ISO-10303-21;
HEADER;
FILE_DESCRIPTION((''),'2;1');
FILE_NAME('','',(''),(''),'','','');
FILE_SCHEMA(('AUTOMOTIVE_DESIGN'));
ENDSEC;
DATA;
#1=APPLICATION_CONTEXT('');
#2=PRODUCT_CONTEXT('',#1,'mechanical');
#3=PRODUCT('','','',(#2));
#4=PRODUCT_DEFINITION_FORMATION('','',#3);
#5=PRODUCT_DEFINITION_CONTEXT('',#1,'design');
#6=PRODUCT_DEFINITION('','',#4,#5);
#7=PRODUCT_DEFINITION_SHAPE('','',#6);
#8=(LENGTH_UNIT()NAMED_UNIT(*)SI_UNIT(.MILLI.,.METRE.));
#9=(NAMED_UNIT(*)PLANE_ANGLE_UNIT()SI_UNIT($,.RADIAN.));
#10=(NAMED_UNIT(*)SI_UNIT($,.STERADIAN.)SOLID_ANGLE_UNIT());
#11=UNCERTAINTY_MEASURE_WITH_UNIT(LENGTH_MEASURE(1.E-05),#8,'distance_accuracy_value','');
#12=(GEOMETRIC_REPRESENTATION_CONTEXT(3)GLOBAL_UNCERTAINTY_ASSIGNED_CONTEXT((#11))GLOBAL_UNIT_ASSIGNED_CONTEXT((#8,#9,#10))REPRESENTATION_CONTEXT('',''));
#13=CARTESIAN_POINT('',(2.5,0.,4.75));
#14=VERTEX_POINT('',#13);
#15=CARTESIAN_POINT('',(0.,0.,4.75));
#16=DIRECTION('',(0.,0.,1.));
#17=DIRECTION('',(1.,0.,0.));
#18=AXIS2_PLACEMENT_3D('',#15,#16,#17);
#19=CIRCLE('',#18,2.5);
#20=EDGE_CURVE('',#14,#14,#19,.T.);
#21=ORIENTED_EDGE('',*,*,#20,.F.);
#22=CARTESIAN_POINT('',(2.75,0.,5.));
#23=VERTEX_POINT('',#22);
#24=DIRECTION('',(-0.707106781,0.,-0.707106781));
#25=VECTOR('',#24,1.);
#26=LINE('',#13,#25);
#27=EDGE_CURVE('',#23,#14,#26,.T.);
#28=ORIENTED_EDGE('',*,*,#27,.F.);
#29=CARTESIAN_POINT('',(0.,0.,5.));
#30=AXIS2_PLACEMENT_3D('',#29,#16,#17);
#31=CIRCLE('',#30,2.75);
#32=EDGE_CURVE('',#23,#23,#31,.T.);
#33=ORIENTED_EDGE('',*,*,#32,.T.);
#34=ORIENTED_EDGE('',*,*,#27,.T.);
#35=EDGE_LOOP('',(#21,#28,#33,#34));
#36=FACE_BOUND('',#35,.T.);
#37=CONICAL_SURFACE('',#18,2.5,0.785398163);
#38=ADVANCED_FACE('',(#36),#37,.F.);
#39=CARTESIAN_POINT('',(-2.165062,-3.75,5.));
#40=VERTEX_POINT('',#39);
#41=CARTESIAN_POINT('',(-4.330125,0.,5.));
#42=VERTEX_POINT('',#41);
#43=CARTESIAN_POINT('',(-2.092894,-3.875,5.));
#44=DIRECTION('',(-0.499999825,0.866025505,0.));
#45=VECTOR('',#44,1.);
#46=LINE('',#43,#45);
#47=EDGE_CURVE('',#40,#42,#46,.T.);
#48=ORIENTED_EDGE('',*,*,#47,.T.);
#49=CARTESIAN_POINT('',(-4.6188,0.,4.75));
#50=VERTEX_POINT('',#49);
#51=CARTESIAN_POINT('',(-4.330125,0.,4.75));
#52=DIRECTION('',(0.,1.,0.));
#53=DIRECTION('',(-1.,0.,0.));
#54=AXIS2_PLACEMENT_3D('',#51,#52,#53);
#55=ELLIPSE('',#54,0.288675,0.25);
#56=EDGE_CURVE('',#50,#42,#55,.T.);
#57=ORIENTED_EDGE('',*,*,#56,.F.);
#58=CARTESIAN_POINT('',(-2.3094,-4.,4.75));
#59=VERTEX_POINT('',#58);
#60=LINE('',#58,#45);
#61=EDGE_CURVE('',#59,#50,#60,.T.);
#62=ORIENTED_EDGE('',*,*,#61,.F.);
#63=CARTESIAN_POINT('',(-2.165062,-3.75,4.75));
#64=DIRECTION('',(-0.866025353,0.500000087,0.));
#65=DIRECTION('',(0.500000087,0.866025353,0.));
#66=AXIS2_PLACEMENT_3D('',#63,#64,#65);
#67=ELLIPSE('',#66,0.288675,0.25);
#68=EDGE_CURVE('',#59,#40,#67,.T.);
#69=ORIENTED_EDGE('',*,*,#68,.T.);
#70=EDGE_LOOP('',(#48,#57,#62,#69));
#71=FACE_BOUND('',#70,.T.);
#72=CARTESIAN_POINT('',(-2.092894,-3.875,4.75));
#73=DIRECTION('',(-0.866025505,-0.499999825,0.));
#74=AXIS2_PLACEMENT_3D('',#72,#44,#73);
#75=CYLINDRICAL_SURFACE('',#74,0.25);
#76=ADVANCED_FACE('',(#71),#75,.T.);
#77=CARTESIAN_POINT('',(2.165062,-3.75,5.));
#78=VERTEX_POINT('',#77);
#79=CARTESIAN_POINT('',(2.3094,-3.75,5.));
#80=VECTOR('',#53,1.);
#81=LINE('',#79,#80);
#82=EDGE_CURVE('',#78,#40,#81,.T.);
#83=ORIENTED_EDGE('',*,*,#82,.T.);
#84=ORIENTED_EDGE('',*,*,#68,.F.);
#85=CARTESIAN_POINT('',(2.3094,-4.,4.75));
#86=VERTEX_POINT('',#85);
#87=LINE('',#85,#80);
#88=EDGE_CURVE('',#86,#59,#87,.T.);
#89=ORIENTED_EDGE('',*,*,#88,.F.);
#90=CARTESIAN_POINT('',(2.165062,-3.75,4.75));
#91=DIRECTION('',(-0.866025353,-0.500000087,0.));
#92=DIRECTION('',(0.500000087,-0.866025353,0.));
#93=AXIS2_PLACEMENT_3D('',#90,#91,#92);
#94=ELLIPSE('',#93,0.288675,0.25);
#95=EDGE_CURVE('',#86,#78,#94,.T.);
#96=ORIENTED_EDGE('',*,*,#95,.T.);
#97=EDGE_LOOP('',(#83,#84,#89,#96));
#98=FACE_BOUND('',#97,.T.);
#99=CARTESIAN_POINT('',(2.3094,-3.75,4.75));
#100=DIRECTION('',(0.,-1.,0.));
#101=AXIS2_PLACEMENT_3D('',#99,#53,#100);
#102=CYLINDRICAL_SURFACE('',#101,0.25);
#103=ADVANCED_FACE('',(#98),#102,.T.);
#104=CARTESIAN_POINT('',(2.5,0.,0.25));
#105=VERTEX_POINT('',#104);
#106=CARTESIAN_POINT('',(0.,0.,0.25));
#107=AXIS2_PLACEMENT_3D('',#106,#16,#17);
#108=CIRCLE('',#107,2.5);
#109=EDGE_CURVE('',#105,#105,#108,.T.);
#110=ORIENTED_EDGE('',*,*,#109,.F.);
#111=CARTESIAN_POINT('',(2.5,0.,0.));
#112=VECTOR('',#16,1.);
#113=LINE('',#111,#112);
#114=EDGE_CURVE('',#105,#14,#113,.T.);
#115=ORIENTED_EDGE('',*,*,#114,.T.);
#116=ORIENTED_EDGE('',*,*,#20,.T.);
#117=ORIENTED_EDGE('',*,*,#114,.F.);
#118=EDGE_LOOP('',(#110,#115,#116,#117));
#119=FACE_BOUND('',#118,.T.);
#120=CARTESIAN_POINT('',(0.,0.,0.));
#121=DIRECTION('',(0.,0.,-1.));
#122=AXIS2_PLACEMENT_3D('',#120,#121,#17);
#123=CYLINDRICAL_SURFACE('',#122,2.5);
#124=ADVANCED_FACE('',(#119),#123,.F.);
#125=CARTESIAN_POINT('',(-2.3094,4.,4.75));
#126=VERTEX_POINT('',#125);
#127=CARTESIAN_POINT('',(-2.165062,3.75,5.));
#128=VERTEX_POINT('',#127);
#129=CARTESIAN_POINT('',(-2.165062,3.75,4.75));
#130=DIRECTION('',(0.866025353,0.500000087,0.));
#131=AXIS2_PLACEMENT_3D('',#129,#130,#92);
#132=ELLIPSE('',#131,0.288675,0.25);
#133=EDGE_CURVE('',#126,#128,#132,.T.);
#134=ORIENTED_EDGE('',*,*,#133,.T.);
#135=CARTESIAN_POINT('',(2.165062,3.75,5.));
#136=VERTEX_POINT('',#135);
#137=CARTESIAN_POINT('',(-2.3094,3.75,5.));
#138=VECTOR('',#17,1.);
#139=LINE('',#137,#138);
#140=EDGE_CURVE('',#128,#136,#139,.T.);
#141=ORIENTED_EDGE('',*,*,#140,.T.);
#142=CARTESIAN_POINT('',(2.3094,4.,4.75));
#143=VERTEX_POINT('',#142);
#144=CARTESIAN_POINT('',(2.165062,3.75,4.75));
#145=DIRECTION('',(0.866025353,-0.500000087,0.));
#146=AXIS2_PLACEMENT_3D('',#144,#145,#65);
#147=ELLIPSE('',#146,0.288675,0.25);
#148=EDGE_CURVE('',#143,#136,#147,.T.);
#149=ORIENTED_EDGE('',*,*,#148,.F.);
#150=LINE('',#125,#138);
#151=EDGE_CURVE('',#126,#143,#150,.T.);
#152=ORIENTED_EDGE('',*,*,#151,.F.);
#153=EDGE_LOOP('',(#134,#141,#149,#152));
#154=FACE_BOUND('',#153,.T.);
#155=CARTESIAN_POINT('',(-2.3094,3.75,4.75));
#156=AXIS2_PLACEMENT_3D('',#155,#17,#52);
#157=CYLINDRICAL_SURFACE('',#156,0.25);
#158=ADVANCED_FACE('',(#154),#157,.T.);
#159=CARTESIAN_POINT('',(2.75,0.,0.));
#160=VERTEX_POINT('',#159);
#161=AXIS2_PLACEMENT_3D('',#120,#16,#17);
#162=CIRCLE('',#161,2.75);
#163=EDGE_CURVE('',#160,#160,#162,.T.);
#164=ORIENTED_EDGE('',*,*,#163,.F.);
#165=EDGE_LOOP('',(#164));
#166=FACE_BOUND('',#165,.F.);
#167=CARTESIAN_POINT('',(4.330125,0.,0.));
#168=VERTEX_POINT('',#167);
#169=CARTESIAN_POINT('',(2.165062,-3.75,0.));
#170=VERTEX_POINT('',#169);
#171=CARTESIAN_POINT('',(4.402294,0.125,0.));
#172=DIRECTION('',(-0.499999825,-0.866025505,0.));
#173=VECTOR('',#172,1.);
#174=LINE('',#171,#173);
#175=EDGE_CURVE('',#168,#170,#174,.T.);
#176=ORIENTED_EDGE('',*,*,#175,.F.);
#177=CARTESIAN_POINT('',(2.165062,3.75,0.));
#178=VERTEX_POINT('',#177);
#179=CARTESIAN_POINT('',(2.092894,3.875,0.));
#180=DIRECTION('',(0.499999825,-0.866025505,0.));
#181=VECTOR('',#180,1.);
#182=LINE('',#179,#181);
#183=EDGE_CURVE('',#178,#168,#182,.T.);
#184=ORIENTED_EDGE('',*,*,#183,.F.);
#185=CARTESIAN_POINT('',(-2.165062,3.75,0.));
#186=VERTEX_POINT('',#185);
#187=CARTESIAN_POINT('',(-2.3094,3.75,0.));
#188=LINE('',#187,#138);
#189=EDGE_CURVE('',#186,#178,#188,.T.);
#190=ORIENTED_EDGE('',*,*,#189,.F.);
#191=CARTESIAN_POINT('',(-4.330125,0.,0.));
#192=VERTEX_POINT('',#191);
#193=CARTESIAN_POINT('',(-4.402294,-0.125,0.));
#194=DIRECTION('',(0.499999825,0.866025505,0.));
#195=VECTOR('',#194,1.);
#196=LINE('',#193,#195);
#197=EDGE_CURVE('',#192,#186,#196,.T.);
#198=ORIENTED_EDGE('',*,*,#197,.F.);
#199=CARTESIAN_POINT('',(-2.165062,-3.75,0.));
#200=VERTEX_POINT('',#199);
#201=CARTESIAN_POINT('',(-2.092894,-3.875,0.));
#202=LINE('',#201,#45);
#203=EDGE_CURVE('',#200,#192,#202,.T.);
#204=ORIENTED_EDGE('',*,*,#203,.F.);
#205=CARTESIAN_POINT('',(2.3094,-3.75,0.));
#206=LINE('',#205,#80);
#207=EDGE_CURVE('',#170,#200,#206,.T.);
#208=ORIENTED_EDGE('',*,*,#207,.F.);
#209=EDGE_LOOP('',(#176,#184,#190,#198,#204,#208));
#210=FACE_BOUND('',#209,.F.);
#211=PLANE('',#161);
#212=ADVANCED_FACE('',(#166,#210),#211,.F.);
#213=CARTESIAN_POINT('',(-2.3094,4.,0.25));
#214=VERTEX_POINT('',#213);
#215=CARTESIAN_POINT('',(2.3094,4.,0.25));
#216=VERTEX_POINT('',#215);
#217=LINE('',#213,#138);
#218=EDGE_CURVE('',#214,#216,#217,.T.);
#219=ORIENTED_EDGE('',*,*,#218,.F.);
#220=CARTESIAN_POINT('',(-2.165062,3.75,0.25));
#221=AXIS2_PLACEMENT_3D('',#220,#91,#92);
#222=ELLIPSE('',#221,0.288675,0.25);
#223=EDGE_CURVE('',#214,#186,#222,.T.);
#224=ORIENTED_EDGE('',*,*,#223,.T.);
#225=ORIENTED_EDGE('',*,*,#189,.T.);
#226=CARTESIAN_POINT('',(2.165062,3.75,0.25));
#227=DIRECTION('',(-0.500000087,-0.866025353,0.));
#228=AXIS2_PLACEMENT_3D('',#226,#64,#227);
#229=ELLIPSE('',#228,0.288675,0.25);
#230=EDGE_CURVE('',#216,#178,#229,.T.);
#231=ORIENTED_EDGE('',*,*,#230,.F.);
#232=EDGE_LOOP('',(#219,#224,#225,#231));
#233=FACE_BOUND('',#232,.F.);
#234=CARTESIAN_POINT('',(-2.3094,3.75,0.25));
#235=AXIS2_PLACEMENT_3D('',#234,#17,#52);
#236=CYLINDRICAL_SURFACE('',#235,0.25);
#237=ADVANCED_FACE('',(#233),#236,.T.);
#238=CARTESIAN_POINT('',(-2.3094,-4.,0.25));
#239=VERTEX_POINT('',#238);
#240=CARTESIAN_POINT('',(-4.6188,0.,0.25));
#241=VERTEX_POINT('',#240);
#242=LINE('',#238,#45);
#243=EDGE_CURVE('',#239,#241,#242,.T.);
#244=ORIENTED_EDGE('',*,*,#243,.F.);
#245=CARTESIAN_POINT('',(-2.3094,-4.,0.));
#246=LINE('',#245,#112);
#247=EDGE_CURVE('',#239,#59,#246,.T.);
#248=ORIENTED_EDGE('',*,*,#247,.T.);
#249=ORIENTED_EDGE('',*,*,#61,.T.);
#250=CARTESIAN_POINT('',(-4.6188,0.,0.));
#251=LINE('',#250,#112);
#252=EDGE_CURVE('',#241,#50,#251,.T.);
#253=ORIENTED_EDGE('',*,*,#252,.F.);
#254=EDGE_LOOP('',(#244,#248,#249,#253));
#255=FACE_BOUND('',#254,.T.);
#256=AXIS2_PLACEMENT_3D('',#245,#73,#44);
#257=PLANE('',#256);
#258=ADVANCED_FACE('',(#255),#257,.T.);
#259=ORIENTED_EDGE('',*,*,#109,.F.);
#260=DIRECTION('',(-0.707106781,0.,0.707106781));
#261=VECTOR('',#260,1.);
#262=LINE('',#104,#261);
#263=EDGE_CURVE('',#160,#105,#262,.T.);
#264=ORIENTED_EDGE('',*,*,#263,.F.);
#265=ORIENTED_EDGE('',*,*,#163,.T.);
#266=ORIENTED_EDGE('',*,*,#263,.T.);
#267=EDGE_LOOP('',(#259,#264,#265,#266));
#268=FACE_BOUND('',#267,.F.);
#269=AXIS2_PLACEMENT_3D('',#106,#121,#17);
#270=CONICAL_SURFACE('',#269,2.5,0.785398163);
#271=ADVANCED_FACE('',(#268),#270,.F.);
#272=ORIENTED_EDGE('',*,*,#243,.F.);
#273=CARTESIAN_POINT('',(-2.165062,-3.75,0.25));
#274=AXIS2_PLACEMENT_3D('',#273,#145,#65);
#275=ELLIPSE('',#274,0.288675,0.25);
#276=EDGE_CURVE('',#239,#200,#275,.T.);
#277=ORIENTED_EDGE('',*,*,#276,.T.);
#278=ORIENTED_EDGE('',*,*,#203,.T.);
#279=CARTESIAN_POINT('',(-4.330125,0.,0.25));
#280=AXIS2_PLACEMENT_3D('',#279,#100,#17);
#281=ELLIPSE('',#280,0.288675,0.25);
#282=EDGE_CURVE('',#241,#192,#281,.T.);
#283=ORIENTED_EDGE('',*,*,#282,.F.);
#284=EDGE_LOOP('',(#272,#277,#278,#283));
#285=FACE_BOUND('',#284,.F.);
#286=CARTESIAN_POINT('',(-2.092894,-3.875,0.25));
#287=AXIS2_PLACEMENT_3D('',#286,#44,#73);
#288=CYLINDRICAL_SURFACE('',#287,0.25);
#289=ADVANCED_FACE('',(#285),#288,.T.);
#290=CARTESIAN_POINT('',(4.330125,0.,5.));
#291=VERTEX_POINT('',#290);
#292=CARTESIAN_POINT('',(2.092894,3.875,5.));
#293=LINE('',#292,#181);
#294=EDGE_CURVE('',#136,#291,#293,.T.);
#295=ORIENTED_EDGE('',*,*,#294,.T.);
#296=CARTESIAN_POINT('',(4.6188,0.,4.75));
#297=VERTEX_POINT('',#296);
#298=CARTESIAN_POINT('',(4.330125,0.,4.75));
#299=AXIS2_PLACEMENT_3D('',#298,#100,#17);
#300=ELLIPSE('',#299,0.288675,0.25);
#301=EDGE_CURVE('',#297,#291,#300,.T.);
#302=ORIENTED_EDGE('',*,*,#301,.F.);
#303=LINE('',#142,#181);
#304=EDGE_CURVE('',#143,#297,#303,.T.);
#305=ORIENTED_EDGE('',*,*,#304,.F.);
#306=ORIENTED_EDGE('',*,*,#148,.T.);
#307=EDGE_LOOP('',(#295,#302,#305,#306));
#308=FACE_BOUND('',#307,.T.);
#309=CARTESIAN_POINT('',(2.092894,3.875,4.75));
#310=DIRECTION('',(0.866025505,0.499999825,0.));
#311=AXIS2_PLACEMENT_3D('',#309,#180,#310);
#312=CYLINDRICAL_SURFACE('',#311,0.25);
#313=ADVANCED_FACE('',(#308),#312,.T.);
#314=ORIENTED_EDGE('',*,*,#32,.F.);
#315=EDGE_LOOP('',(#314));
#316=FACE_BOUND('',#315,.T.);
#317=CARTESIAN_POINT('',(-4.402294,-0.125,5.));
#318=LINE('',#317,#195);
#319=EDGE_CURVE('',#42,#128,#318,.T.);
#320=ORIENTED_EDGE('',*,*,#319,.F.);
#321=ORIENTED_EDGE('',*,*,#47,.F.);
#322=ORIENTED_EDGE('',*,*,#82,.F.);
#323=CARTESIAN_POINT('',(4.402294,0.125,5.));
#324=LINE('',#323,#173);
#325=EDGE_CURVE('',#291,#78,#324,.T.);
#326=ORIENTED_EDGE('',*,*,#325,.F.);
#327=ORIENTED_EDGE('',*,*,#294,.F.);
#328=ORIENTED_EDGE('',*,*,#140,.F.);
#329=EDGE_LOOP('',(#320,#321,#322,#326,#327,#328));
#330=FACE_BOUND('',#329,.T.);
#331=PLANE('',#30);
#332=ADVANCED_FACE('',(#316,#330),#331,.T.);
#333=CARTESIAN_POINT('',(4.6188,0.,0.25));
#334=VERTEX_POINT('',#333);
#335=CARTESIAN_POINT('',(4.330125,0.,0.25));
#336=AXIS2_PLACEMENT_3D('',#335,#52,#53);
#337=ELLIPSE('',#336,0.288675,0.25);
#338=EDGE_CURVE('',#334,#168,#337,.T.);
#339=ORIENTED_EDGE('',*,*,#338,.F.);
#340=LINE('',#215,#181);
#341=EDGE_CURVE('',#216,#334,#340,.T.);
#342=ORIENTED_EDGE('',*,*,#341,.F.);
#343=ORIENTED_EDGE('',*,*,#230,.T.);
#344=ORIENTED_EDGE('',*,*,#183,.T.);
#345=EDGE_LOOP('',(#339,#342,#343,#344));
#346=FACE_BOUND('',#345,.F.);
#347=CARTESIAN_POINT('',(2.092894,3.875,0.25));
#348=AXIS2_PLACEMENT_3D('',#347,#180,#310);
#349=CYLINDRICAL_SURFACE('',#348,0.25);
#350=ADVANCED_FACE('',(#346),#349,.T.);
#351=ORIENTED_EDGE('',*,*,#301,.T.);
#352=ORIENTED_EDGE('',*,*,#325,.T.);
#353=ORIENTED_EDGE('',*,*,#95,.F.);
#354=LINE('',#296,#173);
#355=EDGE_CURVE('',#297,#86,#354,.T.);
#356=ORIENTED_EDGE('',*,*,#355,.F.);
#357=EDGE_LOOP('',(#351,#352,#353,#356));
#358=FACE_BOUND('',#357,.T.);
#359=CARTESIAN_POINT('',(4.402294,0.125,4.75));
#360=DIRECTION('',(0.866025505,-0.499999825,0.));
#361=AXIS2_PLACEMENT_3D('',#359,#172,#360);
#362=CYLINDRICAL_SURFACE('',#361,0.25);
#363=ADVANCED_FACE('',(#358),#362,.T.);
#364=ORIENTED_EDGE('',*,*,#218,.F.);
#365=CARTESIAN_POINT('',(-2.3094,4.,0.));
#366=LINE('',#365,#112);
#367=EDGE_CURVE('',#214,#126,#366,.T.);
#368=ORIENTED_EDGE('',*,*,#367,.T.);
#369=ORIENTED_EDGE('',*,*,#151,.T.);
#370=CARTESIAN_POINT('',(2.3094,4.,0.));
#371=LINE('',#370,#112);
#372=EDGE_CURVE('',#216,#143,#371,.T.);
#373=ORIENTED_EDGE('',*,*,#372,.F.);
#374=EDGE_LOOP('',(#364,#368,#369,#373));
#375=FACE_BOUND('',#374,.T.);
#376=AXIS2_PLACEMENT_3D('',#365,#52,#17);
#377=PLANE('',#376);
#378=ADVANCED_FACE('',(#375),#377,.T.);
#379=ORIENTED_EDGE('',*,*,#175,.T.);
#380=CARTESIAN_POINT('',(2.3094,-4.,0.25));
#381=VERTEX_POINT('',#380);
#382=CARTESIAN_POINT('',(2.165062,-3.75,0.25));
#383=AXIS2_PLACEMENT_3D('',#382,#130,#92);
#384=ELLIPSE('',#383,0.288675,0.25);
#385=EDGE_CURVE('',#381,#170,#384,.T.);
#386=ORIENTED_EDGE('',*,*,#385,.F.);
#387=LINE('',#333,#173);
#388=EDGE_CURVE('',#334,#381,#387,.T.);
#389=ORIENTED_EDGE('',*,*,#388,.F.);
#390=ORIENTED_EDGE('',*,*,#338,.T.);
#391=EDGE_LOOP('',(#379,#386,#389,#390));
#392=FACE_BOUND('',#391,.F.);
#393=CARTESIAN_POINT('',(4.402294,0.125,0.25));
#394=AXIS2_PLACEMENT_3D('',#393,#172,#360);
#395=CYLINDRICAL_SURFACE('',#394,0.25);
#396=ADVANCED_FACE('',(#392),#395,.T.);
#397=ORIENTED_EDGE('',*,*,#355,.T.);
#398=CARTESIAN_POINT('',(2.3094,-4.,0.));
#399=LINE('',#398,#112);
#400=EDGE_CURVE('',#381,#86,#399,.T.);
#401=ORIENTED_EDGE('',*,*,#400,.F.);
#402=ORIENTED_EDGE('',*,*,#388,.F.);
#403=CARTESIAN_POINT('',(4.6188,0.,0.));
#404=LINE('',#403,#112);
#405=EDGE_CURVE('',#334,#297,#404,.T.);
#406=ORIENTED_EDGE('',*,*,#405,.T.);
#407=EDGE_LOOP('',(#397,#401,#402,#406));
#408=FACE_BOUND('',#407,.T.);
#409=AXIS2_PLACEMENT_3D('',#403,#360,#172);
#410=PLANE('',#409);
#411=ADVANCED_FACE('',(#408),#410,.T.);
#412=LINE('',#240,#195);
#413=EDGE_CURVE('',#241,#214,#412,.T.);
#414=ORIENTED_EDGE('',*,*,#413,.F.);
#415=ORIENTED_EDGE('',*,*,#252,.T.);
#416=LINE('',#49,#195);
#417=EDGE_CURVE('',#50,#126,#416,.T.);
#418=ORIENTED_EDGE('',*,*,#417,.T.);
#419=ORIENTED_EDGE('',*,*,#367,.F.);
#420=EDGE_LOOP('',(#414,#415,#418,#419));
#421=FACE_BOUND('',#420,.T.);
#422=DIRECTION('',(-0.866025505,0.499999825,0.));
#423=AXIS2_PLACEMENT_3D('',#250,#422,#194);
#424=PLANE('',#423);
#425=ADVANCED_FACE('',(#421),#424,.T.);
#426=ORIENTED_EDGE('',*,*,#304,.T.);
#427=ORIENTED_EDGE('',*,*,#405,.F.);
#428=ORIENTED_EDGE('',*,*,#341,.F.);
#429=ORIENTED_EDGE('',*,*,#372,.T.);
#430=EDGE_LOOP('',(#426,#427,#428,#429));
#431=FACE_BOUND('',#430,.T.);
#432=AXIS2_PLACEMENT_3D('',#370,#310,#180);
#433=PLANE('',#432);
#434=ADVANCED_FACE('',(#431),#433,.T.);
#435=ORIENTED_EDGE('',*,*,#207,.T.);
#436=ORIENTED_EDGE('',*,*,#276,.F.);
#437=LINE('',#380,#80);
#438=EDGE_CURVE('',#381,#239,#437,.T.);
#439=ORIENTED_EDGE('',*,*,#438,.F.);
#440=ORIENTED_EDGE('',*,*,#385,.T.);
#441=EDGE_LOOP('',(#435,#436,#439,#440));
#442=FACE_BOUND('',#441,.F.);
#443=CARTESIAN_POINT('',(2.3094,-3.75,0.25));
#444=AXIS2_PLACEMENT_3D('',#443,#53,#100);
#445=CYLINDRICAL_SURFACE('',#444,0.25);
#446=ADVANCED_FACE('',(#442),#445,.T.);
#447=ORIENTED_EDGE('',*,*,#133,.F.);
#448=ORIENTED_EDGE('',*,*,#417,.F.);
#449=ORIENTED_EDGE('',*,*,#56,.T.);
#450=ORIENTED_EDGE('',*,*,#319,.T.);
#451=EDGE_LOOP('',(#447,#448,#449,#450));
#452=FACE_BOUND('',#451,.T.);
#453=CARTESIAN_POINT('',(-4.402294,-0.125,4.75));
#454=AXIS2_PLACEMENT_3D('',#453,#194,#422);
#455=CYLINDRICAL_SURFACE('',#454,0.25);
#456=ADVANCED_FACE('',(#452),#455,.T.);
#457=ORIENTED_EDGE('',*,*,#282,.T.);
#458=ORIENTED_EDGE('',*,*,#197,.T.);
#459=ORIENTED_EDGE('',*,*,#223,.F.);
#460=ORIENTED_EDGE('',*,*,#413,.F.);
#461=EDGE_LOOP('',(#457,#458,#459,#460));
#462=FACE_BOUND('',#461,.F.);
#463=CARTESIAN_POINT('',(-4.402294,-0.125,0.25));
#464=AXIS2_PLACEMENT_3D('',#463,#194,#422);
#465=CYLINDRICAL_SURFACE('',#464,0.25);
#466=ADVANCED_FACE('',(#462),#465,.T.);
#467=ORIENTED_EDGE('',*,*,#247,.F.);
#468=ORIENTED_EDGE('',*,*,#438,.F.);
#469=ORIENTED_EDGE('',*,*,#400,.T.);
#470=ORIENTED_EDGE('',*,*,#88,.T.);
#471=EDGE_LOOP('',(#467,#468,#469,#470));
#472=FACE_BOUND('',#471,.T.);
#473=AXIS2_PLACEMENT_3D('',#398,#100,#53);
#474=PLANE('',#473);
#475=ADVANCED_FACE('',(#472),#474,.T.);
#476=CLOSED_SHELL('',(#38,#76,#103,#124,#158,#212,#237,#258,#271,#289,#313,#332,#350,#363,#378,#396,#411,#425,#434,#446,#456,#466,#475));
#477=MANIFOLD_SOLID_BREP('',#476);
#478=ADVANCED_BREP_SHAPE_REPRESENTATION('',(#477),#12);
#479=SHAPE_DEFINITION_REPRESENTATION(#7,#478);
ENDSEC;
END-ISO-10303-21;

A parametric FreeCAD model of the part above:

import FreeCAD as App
import Part
import Sketcher
from FreeCAD import Vector
Q = App.Units.Quantity


def edges_at(feature, points):
    """Names of the edges that pass closest to the given points."""
    edges = feature.Shape.Edges
    near = lambda p: min(range(len(edges)), key=lambda i: edges[i].distToShape(Part.Vertex(*p))[0])
    return sorted({f"Edge{near(p) + 1}" for p in points})

doc = App.newDocument("Part")
body = doc.addObject("PartDesign::Body", "Body")

sketch1 = doc.addObject("Sketcher::SketchObject", "Sketch")
body.addObject(sketch1)
sketch1.AttachmentSupport = (doc.XY_Plane, [""])
sketch1.MapMode = "FlatFace"
sketch1.addGeometry([
    Part.LineSegment(Vector(-2.3094, -4, 0), Vector(2.3094, -4, 0)),
    Part.LineSegment(Vector(2.3094, -4, 0), Vector(4.6188, 0, 0)),
    Part.LineSegment(Vector(4.6188, 0, 0), Vector(2.3094, 4, 0)),
    Part.LineSegment(Vector(2.3094, 4, 0), Vector(-2.3094, 4, 0)),
    Part.LineSegment(Vector(-2.3094, 4, 0), Vector(-4.6188, 0, 0)),
    Part.LineSegment(Vector(-4.6188, 0, 0), Vector(-2.3094, -4, 0)),
    Part.Circle(Vector(0, 0, 0), Vector(0, 0, 1), 2.5),
], False)
sketch1.addConstraint([
    Sketcher.Constraint("Coincident", 0, 2, 1, 1),
    Sketcher.Constraint("Coincident", 1, 2, 2, 1),
    Sketcher.Constraint("Coincident", 2, 2, 3, 1),
    Sketcher.Constraint("Coincident", 3, 2, 4, 1),
    Sketcher.Constraint("Coincident", 4, 2, 5, 1),
    Sketcher.Constraint("Coincident", 5, 2, 0, 1),
    Sketcher.Constraint("Horizontal", 0),
    Sketcher.Constraint("Horizontal", 3),
    Sketcher.Constraint("Coincident", 6, 3, -1, 1),
    Sketcher.Constraint("Symmetric", 0, 2, 3, 2, -1, 1),
    Sketcher.Constraint("Symmetric", 1, 2, 4, 2, -1, 1),
    Sketcher.Constraint("PointOnObject", 1, 2, -1),
    Sketcher.Constraint("Parallel", 2, 5),
    Sketcher.Constraint("Vertical", 0, 2, 2, 2),
    Sketcher.Constraint("Diameter", 6, 5.0),
    Sketcher.Constraint("DistanceY", 0, 2, 2, 2, 8.0),
    Sketcher.Constraint("Angle", 1, Q("60 deg")),
    Sketcher.Constraint("DistanceX", 0, 1, 0, 2, 4.6188),
])
pad1 = doc.addObject("PartDesign::Pad", "Pad")
body.addObject(pad1)
pad1.Profile = sketch1
pad1.Length = 5
doc.recompute()

fillet = doc.addObject("PartDesign::Fillet", "Fillet")
body.addObject(fillet)
fillet.Base = (pad1, edges_at(pad1, [
    (0, 4, 5),
    (3.464, 2, 5),
    (3.464, -2, 5),
    (-3.464, -2, 5),
    (-3.464, 2, 5),
    (0, -4, 5),
    (3.464, -2, 0),
    (3.464, 2, 0),
    (0, 4, 0),
    (-3.464, 2, 0),
    (-3.464, -2, 0),
    (0, -4, 0),
]))
fillet.Radius = 0.25
doc.recompute()

chamfer = doc.addObject("PartDesign::Chamfer", "Chamfer")
body.addObject(chamfer)
chamfer.Base = (fillet, edges_at(fillet, [(-2.5, 0, 5), (-2.5, 0, 0)]))
chamfer.Size = 0.25

doc.recompute()
